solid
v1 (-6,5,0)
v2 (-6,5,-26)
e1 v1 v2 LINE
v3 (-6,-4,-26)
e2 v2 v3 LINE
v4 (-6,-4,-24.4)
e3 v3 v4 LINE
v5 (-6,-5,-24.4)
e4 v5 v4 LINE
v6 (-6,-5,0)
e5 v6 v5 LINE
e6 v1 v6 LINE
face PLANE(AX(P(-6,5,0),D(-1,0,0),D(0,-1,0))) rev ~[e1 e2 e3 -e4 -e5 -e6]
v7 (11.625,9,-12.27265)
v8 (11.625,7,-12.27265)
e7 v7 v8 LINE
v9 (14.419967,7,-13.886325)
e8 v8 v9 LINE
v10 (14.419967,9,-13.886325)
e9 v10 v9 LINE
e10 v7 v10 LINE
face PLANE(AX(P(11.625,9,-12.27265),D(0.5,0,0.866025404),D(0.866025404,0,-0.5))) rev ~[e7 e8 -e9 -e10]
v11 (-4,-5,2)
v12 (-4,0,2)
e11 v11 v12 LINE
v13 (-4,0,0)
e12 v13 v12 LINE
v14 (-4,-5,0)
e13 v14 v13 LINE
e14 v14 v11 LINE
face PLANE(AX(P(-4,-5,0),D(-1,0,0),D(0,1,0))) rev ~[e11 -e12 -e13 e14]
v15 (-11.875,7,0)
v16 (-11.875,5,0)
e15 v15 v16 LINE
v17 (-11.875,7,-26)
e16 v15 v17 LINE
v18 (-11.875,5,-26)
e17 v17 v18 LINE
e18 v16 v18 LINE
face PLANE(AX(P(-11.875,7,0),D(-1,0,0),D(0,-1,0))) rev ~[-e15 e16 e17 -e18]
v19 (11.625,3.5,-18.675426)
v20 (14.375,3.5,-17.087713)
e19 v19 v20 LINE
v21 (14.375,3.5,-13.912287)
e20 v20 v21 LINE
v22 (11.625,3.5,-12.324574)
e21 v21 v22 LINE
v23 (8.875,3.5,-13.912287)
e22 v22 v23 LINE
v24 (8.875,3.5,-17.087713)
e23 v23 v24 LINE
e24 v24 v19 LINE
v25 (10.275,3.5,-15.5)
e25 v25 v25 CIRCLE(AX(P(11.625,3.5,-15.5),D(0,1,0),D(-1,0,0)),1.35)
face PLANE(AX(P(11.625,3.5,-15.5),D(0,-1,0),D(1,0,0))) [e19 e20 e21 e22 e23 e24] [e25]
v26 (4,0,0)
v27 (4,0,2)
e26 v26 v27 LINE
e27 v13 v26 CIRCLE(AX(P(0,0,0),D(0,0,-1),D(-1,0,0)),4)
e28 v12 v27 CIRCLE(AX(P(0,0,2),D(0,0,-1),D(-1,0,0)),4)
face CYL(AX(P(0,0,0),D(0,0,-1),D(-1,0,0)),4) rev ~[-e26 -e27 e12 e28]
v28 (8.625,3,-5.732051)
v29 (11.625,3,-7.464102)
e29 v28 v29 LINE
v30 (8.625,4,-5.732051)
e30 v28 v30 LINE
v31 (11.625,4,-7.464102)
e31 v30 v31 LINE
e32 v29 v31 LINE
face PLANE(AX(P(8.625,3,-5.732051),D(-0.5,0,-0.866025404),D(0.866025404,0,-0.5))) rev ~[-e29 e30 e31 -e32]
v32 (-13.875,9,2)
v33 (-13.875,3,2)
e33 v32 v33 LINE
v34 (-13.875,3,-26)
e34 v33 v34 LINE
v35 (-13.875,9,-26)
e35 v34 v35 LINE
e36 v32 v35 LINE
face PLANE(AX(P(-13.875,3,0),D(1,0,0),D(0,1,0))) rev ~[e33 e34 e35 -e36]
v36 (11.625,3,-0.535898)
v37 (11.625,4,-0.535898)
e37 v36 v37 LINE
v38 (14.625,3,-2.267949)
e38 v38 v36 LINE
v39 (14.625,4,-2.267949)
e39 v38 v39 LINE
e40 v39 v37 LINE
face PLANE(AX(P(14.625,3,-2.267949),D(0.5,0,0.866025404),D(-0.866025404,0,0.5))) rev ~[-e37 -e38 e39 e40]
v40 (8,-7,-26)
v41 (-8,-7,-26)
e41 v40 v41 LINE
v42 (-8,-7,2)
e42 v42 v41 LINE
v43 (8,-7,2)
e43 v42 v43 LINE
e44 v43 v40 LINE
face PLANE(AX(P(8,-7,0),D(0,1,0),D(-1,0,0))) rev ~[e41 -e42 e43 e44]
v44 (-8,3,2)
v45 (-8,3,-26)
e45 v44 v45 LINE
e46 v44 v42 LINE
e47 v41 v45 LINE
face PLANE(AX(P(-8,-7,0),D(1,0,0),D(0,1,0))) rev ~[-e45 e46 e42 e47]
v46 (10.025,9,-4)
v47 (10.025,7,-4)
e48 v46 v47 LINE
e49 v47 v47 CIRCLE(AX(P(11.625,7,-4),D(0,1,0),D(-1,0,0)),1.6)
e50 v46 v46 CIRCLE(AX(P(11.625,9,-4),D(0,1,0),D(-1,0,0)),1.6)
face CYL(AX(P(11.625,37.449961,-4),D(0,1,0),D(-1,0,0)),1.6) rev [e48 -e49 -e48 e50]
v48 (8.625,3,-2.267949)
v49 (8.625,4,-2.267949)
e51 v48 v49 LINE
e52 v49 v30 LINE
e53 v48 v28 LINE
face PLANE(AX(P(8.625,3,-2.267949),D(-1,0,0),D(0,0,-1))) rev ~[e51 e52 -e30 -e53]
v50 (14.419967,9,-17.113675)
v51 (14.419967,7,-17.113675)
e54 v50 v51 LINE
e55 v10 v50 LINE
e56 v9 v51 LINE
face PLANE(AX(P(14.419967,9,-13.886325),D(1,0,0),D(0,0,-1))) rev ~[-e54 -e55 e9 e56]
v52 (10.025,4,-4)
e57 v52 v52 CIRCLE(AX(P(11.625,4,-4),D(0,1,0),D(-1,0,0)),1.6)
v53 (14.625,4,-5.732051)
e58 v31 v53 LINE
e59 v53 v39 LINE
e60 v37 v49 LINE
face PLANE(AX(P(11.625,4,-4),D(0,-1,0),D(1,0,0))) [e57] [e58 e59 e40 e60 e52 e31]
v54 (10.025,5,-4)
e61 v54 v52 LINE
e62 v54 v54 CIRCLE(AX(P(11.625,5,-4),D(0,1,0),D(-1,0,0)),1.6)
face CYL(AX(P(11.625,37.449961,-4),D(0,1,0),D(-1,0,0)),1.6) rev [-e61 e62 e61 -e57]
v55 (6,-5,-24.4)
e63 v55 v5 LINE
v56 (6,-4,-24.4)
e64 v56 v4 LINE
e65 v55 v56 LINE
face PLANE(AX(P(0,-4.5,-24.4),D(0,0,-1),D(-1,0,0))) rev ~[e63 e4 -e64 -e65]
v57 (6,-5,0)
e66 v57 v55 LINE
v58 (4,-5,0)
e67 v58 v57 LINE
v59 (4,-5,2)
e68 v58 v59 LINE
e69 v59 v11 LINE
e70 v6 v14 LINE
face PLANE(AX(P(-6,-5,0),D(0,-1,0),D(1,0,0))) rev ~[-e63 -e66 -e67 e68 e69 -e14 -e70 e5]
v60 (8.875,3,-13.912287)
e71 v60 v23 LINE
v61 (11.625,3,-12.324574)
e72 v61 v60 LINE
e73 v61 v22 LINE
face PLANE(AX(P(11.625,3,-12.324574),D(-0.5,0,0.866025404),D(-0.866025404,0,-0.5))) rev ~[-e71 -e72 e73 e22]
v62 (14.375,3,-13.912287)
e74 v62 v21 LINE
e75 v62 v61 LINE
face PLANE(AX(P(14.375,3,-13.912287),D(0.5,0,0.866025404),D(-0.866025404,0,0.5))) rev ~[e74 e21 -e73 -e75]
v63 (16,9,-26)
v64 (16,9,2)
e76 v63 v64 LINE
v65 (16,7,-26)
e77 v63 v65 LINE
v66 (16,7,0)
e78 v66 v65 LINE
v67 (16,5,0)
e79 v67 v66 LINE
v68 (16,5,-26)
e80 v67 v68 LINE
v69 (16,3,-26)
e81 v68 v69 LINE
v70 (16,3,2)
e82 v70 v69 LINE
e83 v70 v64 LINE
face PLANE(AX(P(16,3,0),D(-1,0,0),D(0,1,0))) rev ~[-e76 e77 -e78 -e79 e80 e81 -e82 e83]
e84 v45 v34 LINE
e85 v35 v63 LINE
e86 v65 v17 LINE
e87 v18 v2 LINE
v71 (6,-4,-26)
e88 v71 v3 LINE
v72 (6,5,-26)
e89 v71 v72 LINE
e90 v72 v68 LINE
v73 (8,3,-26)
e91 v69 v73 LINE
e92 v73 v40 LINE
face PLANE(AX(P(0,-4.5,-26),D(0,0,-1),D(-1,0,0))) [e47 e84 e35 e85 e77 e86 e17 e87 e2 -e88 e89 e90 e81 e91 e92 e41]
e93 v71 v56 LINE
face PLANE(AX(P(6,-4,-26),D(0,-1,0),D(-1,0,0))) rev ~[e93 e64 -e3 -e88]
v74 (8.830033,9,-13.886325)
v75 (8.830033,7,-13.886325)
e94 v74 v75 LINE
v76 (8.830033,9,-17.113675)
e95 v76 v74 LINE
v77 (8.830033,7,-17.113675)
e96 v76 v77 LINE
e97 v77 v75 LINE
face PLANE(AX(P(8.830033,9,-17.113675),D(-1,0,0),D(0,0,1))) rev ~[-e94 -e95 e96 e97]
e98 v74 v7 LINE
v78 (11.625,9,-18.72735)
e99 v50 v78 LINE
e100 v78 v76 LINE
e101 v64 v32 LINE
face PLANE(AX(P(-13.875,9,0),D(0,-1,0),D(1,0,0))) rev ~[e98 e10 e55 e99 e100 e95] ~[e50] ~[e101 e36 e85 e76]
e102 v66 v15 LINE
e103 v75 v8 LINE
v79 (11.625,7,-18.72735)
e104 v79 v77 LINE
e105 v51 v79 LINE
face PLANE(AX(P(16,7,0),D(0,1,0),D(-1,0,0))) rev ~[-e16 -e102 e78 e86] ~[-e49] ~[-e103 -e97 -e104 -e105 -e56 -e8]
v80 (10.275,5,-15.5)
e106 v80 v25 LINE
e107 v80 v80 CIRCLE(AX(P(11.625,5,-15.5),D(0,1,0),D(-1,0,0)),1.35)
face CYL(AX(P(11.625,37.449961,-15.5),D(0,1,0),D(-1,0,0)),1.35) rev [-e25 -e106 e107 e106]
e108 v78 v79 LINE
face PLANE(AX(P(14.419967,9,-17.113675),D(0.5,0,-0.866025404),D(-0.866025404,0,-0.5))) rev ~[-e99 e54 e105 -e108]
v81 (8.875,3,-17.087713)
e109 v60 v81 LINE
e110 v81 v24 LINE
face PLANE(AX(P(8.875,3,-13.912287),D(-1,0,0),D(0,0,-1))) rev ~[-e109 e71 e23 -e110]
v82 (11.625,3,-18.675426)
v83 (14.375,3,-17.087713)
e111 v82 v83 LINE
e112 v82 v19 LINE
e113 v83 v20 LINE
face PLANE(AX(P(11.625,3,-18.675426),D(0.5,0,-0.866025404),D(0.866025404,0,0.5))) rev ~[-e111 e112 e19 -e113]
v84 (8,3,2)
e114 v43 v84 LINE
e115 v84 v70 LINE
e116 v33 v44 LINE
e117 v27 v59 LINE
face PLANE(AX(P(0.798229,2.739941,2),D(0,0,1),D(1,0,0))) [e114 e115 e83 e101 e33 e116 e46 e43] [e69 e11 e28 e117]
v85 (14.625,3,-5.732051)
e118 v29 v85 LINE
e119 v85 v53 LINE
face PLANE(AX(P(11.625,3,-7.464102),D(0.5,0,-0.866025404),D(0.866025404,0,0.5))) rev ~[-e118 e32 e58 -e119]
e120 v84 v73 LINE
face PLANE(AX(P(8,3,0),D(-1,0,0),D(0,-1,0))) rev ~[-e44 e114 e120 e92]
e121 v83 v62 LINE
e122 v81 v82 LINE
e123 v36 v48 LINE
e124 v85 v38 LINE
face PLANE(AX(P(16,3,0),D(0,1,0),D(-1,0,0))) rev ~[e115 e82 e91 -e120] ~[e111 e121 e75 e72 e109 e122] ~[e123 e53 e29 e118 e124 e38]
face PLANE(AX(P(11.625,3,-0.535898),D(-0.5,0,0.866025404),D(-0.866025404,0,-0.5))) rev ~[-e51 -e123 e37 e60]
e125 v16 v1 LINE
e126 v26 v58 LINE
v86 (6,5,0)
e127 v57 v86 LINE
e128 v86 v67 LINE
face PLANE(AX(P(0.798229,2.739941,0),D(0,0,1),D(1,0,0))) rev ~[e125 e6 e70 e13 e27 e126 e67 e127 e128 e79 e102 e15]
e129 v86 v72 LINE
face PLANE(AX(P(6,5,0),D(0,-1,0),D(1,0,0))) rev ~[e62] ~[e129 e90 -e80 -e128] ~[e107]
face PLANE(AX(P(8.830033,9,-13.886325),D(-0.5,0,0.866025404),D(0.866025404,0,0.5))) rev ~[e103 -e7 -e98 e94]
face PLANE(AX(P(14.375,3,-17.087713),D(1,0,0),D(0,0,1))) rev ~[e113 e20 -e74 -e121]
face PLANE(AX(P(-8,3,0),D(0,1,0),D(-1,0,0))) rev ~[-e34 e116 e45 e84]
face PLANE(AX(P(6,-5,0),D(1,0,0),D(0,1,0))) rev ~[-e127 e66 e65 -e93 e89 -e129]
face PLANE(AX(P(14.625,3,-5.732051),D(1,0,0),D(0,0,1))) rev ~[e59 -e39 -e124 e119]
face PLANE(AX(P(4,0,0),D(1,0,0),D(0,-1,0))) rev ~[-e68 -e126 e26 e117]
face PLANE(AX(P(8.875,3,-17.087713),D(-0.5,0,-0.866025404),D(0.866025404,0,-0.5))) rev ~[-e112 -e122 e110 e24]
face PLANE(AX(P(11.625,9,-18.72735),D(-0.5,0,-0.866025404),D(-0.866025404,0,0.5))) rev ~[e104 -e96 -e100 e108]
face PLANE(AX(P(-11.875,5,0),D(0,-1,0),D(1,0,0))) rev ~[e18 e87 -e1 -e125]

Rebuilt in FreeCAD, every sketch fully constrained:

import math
import FreeCAD as App
import Part
import Sketcher

V = App.Vector
Q = App.Units.Quantity


def add_polygon(sketch, points):
    """Adds a closed chain of lines whose ends are joined by coincident constraints."""
    first, n = sketch.GeometryCount, len(points)
    for a, b in zip(points, points[1:] + points[:1]):
        sketch.addGeometry(Part.LineSegment(App.Vector(*a, 0), App.Vector(*b, 0)), False)
    for i in range(n):
        sketch.addConstraint(Sketcher.Constraint("Coincident", first + i, 2, first + (i + 1) % n, 1))

doc = App.newDocument("Part")
body = doc.addObject("PartDesign::Body", "Body")

# Sketch on XY plane
sketch1 = body.newObject("Sketcher::SketchObject", "Sketch")
sketch1.AttachmentSupport = (doc.getObject("XY_Plane"), [""])
sketch1.MapMode = "FlatFace"
add_polygon(sketch1, [(8, -7), (8, 3), (16, 3), (16, 9), (-13.9, 9), (-13.9, 3), (-8, 3), (-8, -7)])  # lines 0-7
sketch1.addGeometry(Part.LineSegment(V(4, -5, 0), V(-4, -5, 0)), False)  # 8
sketch1.addGeometry(Part.LineSegment(V(-4, -5, 0), V(-4, 0, 0)), False)  # 9
sketch1.addGeometry(Part.ArcOfCircle(Part.Circle(V(0, 0, 0), V(0, 0, 1), 4), math.radians(0), math.radians(180)), False)  # 10
sketch1.addGeometry(Part.LineSegment(V(4, 0, 0), V(4, -5, 0)), False)  # 11
sketch1.addConstraint([
    Sketcher.Constraint("Coincident", 8, 2, 9, 1),
    Sketcher.Constraint("Tangent", 9, 2, 10, 2),
    Sketcher.Constraint("Tangent", 10, 1, 11, 1),
    Sketcher.Constraint("Coincident", 11, 2, 8, 1),
    Sketcher.Constraint("Vertical", 0),
    Sketcher.Constraint("Horizontal", 1),
    Sketcher.Constraint("Vertical", 2),
    Sketcher.Constraint("Horizontal", 3),
    Sketcher.Constraint("Vertical", 4),
    Sketcher.Constraint("Horizontal", 5),
    Sketcher.Constraint("Vertical", 6),
    Sketcher.Constraint("Horizontal", 7),
    Sketcher.Constraint("Horizontal", 8),
    Sketcher.Constraint("Vertical", 9),
    Sketcher.Constraint("Vertical", 11),
    Sketcher.Constraint("Coincident", 10, 3, -1, 1),
    Sketcher.Constraint("Symmetric", 0, 2, 5, 2, -2),
    Sketcher.Constraint("Equal", 1, 8),
    Sketcher.Constraint("Radius", 10, Q("4 mm")),
    Sketcher.Constraint("DistanceX", 7, 1, 7, 2, Q("16 mm")),
    Sketcher.Constraint("DistanceY", 0, 1, 0, 2, Q("10 mm")),
    Sketcher.Constraint("DistanceY", 2, 1, 2, 2, Q("6 mm")),
    Sketcher.Constraint("DistanceY", 9, 1, 9, 2, Q("5 mm")),
    Sketcher.Constraint("DistanceY", -1, 1, 0, 2, Q("3 mm")),
    Sketcher.Constraint("DistanceX", 3, 2, 3, 1, Q("29.875 mm")),
])
pad1 = body.newObject("PartDesign::Pad", "Pad")
pad1.Profile = sketch1
pad1.Length = 2

# Sketch on XY plane
sketch2 = body.newObject("Sketcher::SketchObject", "Sketch001")
sketch2.AttachmentSupport = (doc.getObject("XY_Plane"), [""])
sketch2.MapMode = "FlatFace"
add_polygon(sketch2, [(-6, -5), (6, -5), (6, 5), (16, 5), (16, 3), (8, 3), (8, -7), (-8, -7), (-8, 3), (-13.9, 3), (-13.9, 9), (16, 9), (16, 7), (-11.9, 7), (-11.9, 5), (-6, 5)])  # lines 0-15
sketch2.addConstraint([
    Sketcher.Constraint("Horizontal", 0),
    Sketcher.Constraint("Vertical", 1),
    Sketcher.Constraint("Horizontal", 2),
    Sketcher.Constraint("Vertical", 3),
    Sketcher.Constraint("Horizontal", 4),
    Sketcher.Constraint("Vertical", 5),
    Sketcher.Constraint("Horizontal", 6),
    Sketcher.Constraint("Vertical", 7),
    Sketcher.Constraint("Horizontal", 8),
    Sketcher.Constraint("Vertical", 9),
    Sketcher.Constraint("Horizontal", 10),
    Sketcher.Constraint("Vertical", 11),
    Sketcher.Constraint("Horizontal", 12),
    Sketcher.Constraint("Vertical", 13),
    Sketcher.Constraint("Horizontal", 14),
    Sketcher.Constraint("Vertical", 15),
    Sketcher.Constraint("Symmetric", 0, 2, 14, 2, -1, 1),
    Sketcher.Constraint("Symmetric", 4, 2, 7, 2, -2),
    Sketcher.Constraint("Horizontal", 2, 2, 13, 2),
    Sketcher.Constraint("Vertical", 3, 2, 10, 2),
    Sketcher.Constraint("Equal", 8, 14),
    Sketcher.Constraint("Equal", 2, 1),
    Sketcher.Constraint("Equal", 1, 5),
    Sketcher.Constraint("Equal", 3, 11),
    Sketcher.Constraint("Equal", 11, 13),
    Sketcher.Constraint("DistanceX", 0, 1, 0, 2, Q("12 mm")),
    Sketcher.Constraint("DistanceX", 2, 1, 2, 2, Q("10 mm")),
    Sketcher.Constraint("DistanceX", 4, 2, 4, 1, Q("8 mm")),
    Sketcher.Constraint("DistanceY", 3, 2, 3, 1, Q("2 mm")),
    Sketcher.Constraint("DistanceX", 8, 2, 8, 1, Q("5.875 mm")),
])
pad2 = body.newObject("PartDesign::Pad", "Pad001")
pad2.Profile = sketch2
pad2.Length = 26
pad2.Reversed = True

# Sketch on XY plane
sketch3 = body.newObject("Sketcher::SketchObject", "Sketch002")
sketch3.AttachmentSupport = (doc.getObject("XY_Plane"), [""])
sketch3.MapMode = "FlatFace"
sketch3.AttachmentOffset = App.Placement(V(0, 0, -26), App.Rotation())
add_polygon(sketch3, [(6, -4), (6, -5), (-6, -5), (-6, -4)])  # lines 0-3
sketch3.addConstraint([
    Sketcher.Constraint("Vertical", 0),
    Sketcher.Constraint("Horizontal", 1),
    Sketcher.Constraint("Vertical", 2),
    Sketcher.Constraint("Horizontal", 3),
    Sketcher.Constraint("DistanceX", 1, 2, 1, 1, Q("12 mm")),
    Sketcher.Constraint("DistanceY", 0, 2, 0, 1, Q("1 mm")),
    Sketcher.Constraint("DistanceX", -1, 1, 0, 2, Q("6 mm")),
    Sketcher.Constraint("DistanceY", 0, 2, -1, 1, Q("5 mm")),
])
pad3 = body.newObject("PartDesign::Pad", "Pad002")
pad3.Profile = sketch3
pad3.Length = 1.6

# Sketch on XZ plane
sketch4 = body.newObject("Sketcher::SketchObject", "Sketch003")
sketch4.AttachmentSupport = (doc.getObject("XZ_Plane"), [""])
sketch4.MapMode = "FlatFace"
sketch4.AttachmentOffset = App.Placement(V(0, 0, -9), App.Rotation())
add_polygon(sketch4, [(11.6, -12.3), (14.4, -13.9), (14.4, -17.1), (11.6, -18.7), (8.8, -17.1), (8.8, -13.9)])  # lines 0-5
sketch4.addConstraint([
    Sketcher.Constraint("Vertical", 1),
    Sketcher.Constraint("Vertical", 4),
    Sketcher.Constraint("Parallel", 0, 3),
    Sketcher.Constraint("Parallel", 2, 5),
    Sketcher.Constraint("Horizontal", 1, 2, 3, 2),
    Sketcher.Constraint("Horizontal", 0, 2, 4, 2),
    Sketcher.Constraint("Vertical", 2, 2, 5, 2),
    Sketcher.Constraint("Angle", 0, Q("-30 deg")),
    Sketcher.Constraint("DistanceX", -1, 1, 2, 2, Q("11.625 mm")),
    Sketcher.Constraint("DistanceY", 1, 2, 1, 1, Q("3.22735 mm")),
    Sketcher.Constraint("DistanceY", 2, 2, 5, 2, Q("6.454701 mm")),
    Sketcher.Constraint("DistanceY", 2, 2, -1, 1, Q("18.72735 mm")),
])
pocket1 = body.newObject("PartDesign::Pocket", "Pocket")
pocket1.Profile = sketch4
pocket1.Length = 2
pocket1.Reversed = True

# Sketch on XZ plane
sketch5 = body.newObject("Sketcher::SketchObject", "Sketch004")
sketch5.AttachmentSupport = (doc.getObject("XZ_Plane"), [""])
sketch5.MapMode = "FlatFace"
sketch5.AttachmentOffset = App.Placement(V(0, 0, -3), App.Rotation())
add_polygon(sketch5, [(11.6, -18.7), (14.4, -17.1), (14.4, -13.9), (11.6, -12.3), (8.9, -13.9), (8.9, -17.1)])  # lines 0-5
sketch5.addConstraint([
    Sketcher.Constraint("Vertical", 1),
    Sketcher.Constraint("Vertical", 4),
    Sketcher.Constraint("Parallel", 0, 3),
    Sketcher.Constraint("Parallel", 2, 5),
    Sketcher.Constraint("Horizontal", 1, 2, 3, 2),
    Sketcher.Constraint("Horizontal", 0, 2, 4, 2),
    Sketcher.Constraint("Vertical", 2, 2, 5, 2),
    Sketcher.Constraint("Angle", 0, Q("30 deg")),
    Sketcher.Constraint("DistanceX", 3, 2, 1, 2, Q("5.5 mm")),
    Sketcher.Constraint("DistanceX", -1, 1, 0, 2, Q("14.375 mm")),
    Sketcher.Constraint("DistanceY", 1, 1, 1, 2, Q("3.175426 mm")),
    Sketcher.Constraint("DistanceY", 0, 2, -1, 1, Q("17.087713 mm")),
])
pocket2 = body.newObject("PartDesign::Pocket", "Pocket001")
pocket2.Profile = sketch5
pocket2.Length = 0.5

# Sketch on XZ plane
sketch6 = body.newObject("Sketcher::SketchObject", "Sketch005")
sketch6.AttachmentSupport = (doc.getObject("XZ_Plane"), [""])
sketch6.MapMode = "FlatFace"
sketch6.AttachmentOffset = App.Placement(V(0, 0, -3), App.Rotation())
add_polygon(sketch6, [(8.6, -5.7), (11.6, -7.5), (14.6, -5.7), (14.6, -2.3), (11.6, -0.5), (8.6, -2.3)])  # lines 0-5
sketch6.addConstraint([
    Sketcher.Constraint("Vertical", 2),
    Sketcher.Constraint("Vertical", 5),
    Sketcher.Constraint("Parallel", 0, 3),
    Sketcher.Constraint("Parallel", 1, 4),
    Sketcher.Constraint("Horizontal", 2, 2, 4, 2),
    Sketcher.Constraint("Horizontal", 1, 2, 5, 2),
    Sketcher.Constraint("Vertical", 0, 2, 3, 2),
    Sketcher.Constraint("Angle", 0, Q("-30 deg")),
    Sketcher.Constraint("DistanceX", 0, 2, 1, 2, Q("3 mm")),
    Sketcher.Constraint("DistanceY", 2, 1, 2, 2, Q("3.464102 mm")),
    Sketcher.Constraint("DistanceX", -1, 1, 0, 2, Q("11.625 mm")),
    Sketcher.Constraint("DistanceY", 0, 2, -1, 1, Q("7.464102 mm")),
])
pocket3 = body.newObject("PartDesign::Pocket", "Pocket002")
pocket3.Profile = sketch6
pocket3.Length = 1

# Sketch on XZ plane
sketch7 = body.newObject("Sketcher::SketchObject", "Sketch006")
sketch7.AttachmentSupport = (doc.getObject("XZ_Plane"), [""])
sketch7.MapMode = "FlatFace"
sketch7.AttachmentOffset = App.Placement(V(0, 0, -4), App.Rotation())
sketch7.addGeometry([
    Part.Circle(V(11.6, -15.5, 0), V(0, 0, 1), 1.4),
    Part.Circle(V(11.6, -4, 0), V(0, 0, 1), 1.6),
], False)
sketch7.addConstraint([
    Sketcher.Constraint("Vertical", 0, 3, 1, 3),
    Sketcher.Constraint("Diameter", 0, Q("2.7 mm")),
    Sketcher.Constraint("Diameter", 1, Q("3.2 mm")),
    Sketcher.Constraint("DistanceY", 1, 3, -1, 1, Q("4 mm")),
    Sketcher.Constraint("DistanceY", 0, 3, -1, 1, Q("15.5 mm")),
    Sketcher.Constraint("DistanceX", -1, 1, 0, 3, Q("11.625 mm")),
])
pocket4 = body.newObject("PartDesign::Pocket", "Pocket003")
pocket4.Profile = sketch7
pocket4.Type = "ThroughAll"
pocket4.Midplane = True

doc.recompute()
